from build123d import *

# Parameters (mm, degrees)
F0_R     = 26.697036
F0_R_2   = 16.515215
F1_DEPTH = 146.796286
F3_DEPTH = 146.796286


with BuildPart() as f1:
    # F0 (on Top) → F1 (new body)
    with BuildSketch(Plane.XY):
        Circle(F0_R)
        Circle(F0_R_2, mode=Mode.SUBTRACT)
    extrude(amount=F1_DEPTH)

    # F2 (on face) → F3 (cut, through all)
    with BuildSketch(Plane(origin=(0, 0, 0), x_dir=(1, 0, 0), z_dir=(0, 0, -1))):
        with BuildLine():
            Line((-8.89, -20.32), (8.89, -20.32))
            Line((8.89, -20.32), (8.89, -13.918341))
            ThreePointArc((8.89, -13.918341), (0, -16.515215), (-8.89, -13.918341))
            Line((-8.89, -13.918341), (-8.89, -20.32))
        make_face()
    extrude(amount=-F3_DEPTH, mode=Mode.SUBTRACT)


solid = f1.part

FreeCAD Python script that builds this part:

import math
import FreeCAD as App
import Part
import Sketcher

V = App.Vector
Q = App.Units.Quantity

doc = App.newDocument("Part")
body = doc.addObject("PartDesign::Body", "Body")

# Sketch on XY plane
sketch1 = body.newObject("Sketcher::SketchObject", "Sketch")
sketch1.AttachmentSupport = (doc.getObject("XY_Plane"), [""])
sketch1.MapMode = "FlatFace"
sketch1.addGeometry([
    Part.Circle(V(0, 0, 0), V(0, 0, 1), 26.697036),
    Part.Circle(V(0, 0, 0), V(0, 0, 1), 16.515215),
], False)
sketch1.addConstraint([
    Sketcher.Constraint("Coincident", 0, 3, -1, 1),
    Sketcher.Constraint("Coincident", 1, 3, -1, 1),
    Sketcher.Constraint("Diameter", 1, 33.03043),
    Sketcher.Constraint("Diameter", 0, 53.394072),
])
pad1 = body.newObject("PartDesign::Pad", "Pad")
pad1.Profile = sketch1
pad1.Length = 146.796286

# Sketch on XY plane
sketch2 = body.newObject("Sketcher::SketchObject", "Sketch001")
sketch2.AttachmentSupport = (doc.getObject("XY_Plane"), [""])
sketch2.MapMode = "FlatFace"
sketch2.addGeometry([
    Part.LineSegment(V(-8.89, 20.32, 0), V(8.89, 20.32, 0)),
    Part.LineSegment(V(8.89, 20.32, 0), V(8.89, 13.918341, 0)),
    Part.ArcOfCircle(Part.Circle(V(0, 0.000002, 0), V(0, 0, 1), 16.515213), math.radians(57.432586), math.radians(122.567414)),
    Part.LineSegment(V(-8.89, 13.918341, 0), V(-8.89, 20.32, 0)),
], False)
sketch2.addConstraint([
    Sketcher.Constraint("Coincident", 0, 2, 1, 1),
    Sketcher.Constraint("Coincident", 1, 2, 2, 1),
    Sketcher.Constraint("Coincident", 2, 2, 3, 1),
    Sketcher.Constraint("Coincident", 3, 2, 0, 1),
    Sketcher.Constraint("Horizontal", 0),
    Sketcher.Constraint("Vertical", 1),
    Sketcher.Constraint("Vertical", 3),
    Sketcher.Constraint("Coincident", 2, 3, -1, 1),
    Sketcher.Constraint("Horizontal", 1, 2, 2, 2),
    Sketcher.Constraint("DistanceX", 0, 1, 0, 2, Q("0.7 in")),
    Sketcher.Constraint("DistanceY", -1, 1, 0, 2, Q("0.8 in")),
    Sketcher.Constraint("Radius", 2, 16.515213),
])
pocket1 = body.newObject("PartDesign::Pocket", "Pocket")
pocket1.Profile = sketch2
pocket1.Type = "ThroughAll"
pocket1.Reversed = True

doc.recompute()
